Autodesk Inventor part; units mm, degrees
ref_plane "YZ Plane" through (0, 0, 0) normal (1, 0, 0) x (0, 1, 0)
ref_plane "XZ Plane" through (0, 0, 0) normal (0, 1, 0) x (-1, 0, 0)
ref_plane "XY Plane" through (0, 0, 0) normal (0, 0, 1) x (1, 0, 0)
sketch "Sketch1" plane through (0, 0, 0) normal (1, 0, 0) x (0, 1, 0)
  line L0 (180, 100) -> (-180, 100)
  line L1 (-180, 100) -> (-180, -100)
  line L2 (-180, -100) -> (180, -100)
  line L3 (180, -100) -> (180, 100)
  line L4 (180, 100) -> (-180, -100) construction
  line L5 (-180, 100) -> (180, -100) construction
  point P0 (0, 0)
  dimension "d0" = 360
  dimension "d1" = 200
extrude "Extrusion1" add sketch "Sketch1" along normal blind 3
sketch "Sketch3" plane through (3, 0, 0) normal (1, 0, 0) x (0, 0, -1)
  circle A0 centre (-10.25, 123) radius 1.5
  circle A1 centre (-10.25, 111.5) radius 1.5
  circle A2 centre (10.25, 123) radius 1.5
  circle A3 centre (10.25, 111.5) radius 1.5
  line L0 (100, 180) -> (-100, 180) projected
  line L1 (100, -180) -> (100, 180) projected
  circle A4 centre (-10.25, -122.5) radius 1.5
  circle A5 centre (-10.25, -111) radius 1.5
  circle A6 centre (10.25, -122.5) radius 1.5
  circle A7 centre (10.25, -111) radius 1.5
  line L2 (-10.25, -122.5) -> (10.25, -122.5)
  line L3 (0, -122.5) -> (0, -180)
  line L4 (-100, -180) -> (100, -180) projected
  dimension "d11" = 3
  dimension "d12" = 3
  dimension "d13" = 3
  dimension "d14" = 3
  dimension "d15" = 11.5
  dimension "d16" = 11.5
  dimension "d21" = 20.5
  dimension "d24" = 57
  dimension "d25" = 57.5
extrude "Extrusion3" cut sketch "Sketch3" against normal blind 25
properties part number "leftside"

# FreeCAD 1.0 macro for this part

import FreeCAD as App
import Part
import Sketcher
Q = App.Units.Quantity


def add_polygon(sketch, points):
    """Adds a closed chain of lines whose ends are joined by coincident constraints."""
    first, n = sketch.GeometryCount, len(points)
    for a, b in zip(points, points[1:] + points[:1]):
        sketch.addGeometry(Part.LineSegment(App.Vector(*a, 0), App.Vector(*b, 0)), False)
    for i in range(n):
        sketch.addConstraint(Sketcher.Constraint("Coincident", first + i, 2, first + (i + 1) % n, 1))

doc = App.newDocument("Part")
body = doc.addObject("PartDesign::Body", "Body")

# Sketch on YZ plane
sketch1 = body.newObject("Sketcher::SketchObject", "Sketch")
sketch1.AttachmentSupport = (doc.getObject("YZ_Plane"), [""])
sketch1.MapMode = "FlatFace"
add_polygon(sketch1, [(180, -100), (180, 100), (-180, 100), (-180, -100)])  # lines 0-3
sketch1.addConstraint([
    Sketcher.Constraint("Vertical", 0),
    Sketcher.Constraint("Horizontal", 1),
    Sketcher.Constraint("Vertical", 2),
    Sketcher.Constraint("Horizontal", 3),
    Sketcher.Constraint("Symmetric", 0, 2, 2, 2, -1, 1),
    Sketcher.Constraint("DistanceX", 1, 2, 1, 1, Q("360 mm")),
    Sketcher.Constraint("DistanceY", 0, 1, 0, 2, Q("200 mm")),
])
pad1 = body.newObject("PartDesign::Pad", "Pad")
pad1.Profile = sketch1
pad1.Length = 3

# Sketch on YZ plane
sketch2 = body.newObject("Sketcher::SketchObject", "Sketch001")
sketch2.AttachmentSupport = (doc.getObject("YZ_Plane"), [""])
sketch2.MapMode = "FlatFace"
sketch2.AttachmentOffset = App.Placement(App.Vector(0, 0, 3), App.Rotation())
sketch2.addGeometry([
    Part.Circle(App.Vector(123, 10.2, 0), App.Vector(0, 0, 1), 1.5),  # 0
    Part.Circle(App.Vector(111.5, 10.2, 0), App.Vector(0, 0, 1), 1.5),  # 1
    Part.Circle(App.Vector(123, -10.2, 0), App.Vector(0, 0, 1), 1.5),  # 2
    Part.Circle(App.Vector(111.5, -10.2, 0), App.Vector(0, 0, 1), 1.5),  # 3
    Part.Circle(App.Vector(-122.5, 10.2, 0), App.Vector(0, 0, 1), 1.5),  # 4
    Part.Circle(App.Vector(-122.5, -10.2, 0), App.Vector(0, 0, 1), 1.5),  # 5
    Part.Circle(App.Vector(-111, 10.2, 0), App.Vector(0, 0, 1), 1.5),  # 6
    Part.Circle(App.Vector(-111, -10.2, 0), App.Vector(0, 0, 1), 1.5),  # 7
], False)
sketch2.addConstraint([
    Sketcher.Constraint("Equal", 0, 1),
    Sketcher.Constraint("Equal", 1, 2),
    Sketcher.Constraint("Equal", 2, 3),
    Sketcher.Constraint("Equal", 3, 4),
    Sketcher.Constraint("Equal", 4, 5),
    Sketcher.Constraint("Equal", 5, 6),
    Sketcher.Constraint("Equal", 6, 7),
    Sketcher.Constraint("Symmetric", 0, 3, 2, 3, -1),
    Sketcher.Constraint("Symmetric", 1, 3, 3, 3, -1),
    Sketcher.Constraint("Symmetric", 4, 3, 5, 3, -1),
    Sketcher.Constraint("Symmetric", 6, 3, 7, 3, -1),
    Sketcher.Constraint("Horizontal", 0, 3, 1, 3),
    Sketcher.Constraint("Horizontal", 1, 3, 4, 3),
    Sketcher.Constraint("Horizontal", 4, 3, 6, 3),
    Sketcher.Constraint("Diameter", 0, Q("3 mm")),
    Sketcher.Constraint("DistanceX", 1, 3, 0, 3, Q("11.5 mm")),
    Sketcher.Constraint("DistanceY", 2, 3, 0, 3, Q("20.5 mm")),
    Sketcher.Constraint("DistanceX", 4, 3, 6, 3, Q("11.5 mm")),
    Sketcher.Constraint("DistanceX", -1, 1, 0, 3, Q("123 mm")),
    Sketcher.Constraint("DistanceX", 6, 3, -1, 1, Q("111 mm")),
])
pocket1 = body.newObject("PartDesign::Pocket", "Pocket")
pocket1.Profile = sketch2
pocket1.Length = 25

doc.recompute()
